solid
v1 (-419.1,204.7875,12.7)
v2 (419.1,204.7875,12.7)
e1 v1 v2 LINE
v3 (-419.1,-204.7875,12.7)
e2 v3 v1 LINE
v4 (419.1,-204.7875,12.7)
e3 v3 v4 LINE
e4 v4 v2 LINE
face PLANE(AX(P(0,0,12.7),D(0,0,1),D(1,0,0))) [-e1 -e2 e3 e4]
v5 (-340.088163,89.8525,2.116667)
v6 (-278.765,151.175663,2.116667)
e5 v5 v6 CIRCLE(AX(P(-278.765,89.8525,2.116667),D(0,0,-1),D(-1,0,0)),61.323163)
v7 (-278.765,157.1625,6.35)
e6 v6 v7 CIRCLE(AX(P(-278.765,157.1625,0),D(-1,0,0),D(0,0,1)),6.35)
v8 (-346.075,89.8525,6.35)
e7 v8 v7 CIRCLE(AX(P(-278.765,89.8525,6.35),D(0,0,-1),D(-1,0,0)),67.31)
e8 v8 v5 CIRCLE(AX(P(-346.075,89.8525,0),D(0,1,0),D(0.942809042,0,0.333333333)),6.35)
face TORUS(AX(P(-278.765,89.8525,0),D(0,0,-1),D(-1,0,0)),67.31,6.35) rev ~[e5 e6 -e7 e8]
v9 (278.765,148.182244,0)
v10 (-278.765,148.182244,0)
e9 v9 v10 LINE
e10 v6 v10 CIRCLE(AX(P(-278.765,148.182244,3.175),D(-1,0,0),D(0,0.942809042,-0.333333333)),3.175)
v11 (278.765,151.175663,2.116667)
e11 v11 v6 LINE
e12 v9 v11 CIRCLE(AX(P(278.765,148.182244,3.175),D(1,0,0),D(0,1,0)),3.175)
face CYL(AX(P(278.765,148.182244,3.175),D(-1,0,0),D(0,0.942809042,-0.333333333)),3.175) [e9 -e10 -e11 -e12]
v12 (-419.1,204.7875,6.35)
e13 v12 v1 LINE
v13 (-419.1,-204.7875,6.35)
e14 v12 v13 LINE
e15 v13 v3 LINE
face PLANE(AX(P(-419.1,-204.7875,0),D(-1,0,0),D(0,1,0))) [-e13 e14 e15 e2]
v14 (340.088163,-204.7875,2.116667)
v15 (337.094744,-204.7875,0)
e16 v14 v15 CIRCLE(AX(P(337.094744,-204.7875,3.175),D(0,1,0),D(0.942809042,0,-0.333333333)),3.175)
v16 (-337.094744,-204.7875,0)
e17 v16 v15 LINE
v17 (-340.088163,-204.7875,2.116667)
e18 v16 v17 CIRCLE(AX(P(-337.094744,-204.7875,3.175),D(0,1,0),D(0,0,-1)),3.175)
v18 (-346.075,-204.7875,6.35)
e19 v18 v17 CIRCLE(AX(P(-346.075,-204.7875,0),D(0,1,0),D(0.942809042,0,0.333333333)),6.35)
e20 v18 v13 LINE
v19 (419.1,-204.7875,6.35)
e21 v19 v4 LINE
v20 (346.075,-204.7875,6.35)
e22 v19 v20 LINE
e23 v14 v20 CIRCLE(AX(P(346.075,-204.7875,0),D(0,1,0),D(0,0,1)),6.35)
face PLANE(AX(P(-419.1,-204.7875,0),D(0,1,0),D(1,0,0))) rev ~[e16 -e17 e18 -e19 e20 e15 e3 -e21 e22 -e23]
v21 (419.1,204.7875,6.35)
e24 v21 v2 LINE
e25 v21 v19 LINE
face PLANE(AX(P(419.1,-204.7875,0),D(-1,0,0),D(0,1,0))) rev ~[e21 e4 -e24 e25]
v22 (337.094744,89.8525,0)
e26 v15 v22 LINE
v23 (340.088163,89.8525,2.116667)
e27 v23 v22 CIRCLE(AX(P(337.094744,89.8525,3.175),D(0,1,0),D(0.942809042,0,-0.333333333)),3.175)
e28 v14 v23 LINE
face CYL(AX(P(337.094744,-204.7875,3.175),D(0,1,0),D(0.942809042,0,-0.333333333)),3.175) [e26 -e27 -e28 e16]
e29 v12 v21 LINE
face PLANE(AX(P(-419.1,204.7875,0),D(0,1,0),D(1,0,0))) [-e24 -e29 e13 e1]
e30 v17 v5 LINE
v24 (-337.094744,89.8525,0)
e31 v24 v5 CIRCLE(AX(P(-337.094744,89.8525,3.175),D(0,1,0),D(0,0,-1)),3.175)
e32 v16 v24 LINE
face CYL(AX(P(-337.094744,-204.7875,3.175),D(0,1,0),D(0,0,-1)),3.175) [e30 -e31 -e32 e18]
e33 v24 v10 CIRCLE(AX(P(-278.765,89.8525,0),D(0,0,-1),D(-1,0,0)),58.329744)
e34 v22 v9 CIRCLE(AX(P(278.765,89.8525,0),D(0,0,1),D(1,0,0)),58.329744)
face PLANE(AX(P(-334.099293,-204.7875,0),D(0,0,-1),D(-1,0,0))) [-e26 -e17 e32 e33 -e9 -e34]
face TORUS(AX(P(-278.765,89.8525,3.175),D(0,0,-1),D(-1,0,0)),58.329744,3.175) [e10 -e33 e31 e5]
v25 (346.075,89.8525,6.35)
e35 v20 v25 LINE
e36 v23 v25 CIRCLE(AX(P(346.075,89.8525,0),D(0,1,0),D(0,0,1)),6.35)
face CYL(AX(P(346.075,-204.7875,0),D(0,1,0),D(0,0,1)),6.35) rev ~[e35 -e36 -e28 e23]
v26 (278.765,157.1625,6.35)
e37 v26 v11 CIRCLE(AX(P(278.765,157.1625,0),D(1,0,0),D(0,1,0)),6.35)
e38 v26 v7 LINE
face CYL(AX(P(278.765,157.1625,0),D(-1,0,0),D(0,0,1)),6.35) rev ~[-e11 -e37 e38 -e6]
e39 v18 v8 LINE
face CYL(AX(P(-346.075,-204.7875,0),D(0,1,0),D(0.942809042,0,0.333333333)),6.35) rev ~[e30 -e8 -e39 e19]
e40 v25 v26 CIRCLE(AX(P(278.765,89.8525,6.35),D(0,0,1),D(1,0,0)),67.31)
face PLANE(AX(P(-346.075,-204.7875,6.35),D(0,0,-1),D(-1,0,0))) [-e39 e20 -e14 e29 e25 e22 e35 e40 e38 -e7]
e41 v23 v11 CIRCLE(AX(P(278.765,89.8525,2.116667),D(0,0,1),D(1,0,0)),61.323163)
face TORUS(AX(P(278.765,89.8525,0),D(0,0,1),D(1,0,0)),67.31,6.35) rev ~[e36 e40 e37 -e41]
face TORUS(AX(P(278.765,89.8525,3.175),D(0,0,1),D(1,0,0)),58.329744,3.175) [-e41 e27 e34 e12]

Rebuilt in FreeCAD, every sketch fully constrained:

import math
import FreeCAD as App
import Part
import Sketcher

V = App.Vector
Q = App.Units.Quantity

doc = App.newDocument("Part")
body = doc.addObject("PartDesign::Body", "Body")

sketch1 = body.newObject("Sketcher::SketchObject", "Sketch")
sketch1.AttachmentSupport = (doc.getObject("XY_Plane"), [""])
sketch1.MapMode = "FlatFace"
sketch1.addGeometry([
    Part.LineSegment(V(-419, 205, 0), V(-419, -205, 0)),
    Part.LineSegment(V(-419, -205, 0), V(419, -205, 0)),
    Part.LineSegment(V(419, -205, 0), V(419, 205, 0)),
    Part.LineSegment(V(419, 205, 0), V(-419, 205, 0)),
], False)
sketch1.addConstraint([
    Sketcher.Constraint("Coincident", 0, 2, 1, 1),
    Sketcher.Constraint("Coincident", 1, 2, 2, 1),
    Sketcher.Constraint("Coincident", 2, 2, 3, 1),
    Sketcher.Constraint("Coincident", 3, 2, 0, 1),
    Sketcher.Constraint("Vertical", 0),
    Sketcher.Constraint("Horizontal", 1),
    Sketcher.Constraint("Vertical", 2),
    Sketcher.Constraint("Horizontal", 3),
    Sketcher.Constraint("Symmetric", 0, 2, 2, 2, -1, 1),
    Sketcher.Constraint("DistanceX", 1, 1, 1, 2, Q("33 in")),
    Sketcher.Constraint("DistanceY", 0, 2, 0, 1, Q("16.125 in")),
])
pad1 = body.newObject("PartDesign::Pad", "Pad")
pad1.Profile = sketch1
pad1.Length = Q("0.5 in")

sketch2 = body.newObject("Sketcher::SketchObject", "Sketch001")
sketch2.AttachmentSupport = (doc.getObject("XZ_Plane"), [""])
sketch2.MapMode = "FlatFace"
sketch2.AttachmentOffset = App.Placement(V(0, 0, 8.0625 * 25.4), App.Rotation())
sketch2.addGeometry([
    Part.LineSegment(V(419.1, 6.3, 0), V(346.1, 6.3, 0)),
    Part.ArcOfCircle(Part.Circle(V(346.1, 0, 0), V(0, 0, 1), 6.3), math.radians(90), math.radians(161)),
    Part.ArcOfCircle(Part.Circle(V(337.1, 3.2, 0), V(0, 0, 1), 3.2), math.radians(-90), math.radians(-19)),
    Part.LineSegment(V(337.1, 0, 0), V(334.1, 0, 0)),
    Part.LineSegment(V(334.1, 0, 0), V(334.1, -8.4, 0)),
    Part.LineSegment(V(334.1, -8.4, 0), V(419.1, -8.4, 0)),
    Part.LineSegment(V(419.1, -8.4, 0), V(419.1, 6.3, 0)),
], False)
sketch2.addConstraint([
    Sketcher.Constraint("Tangent", 0, 2, 1, 1),
    Sketcher.Constraint("Tangent", 1, 2, 2, 2),
    Sketcher.Constraint("Tangent", 2, 1, 3, 1),
    Sketcher.Constraint("Coincident", 3, 2, 4, 1),
    Sketcher.Constraint("Coincident", 4, 2, 5, 1),
    Sketcher.Constraint("Coincident", 5, 2, 6, 1),
    Sketcher.Constraint("Coincident", 6, 2, 0, 1),
    Sketcher.Constraint("Horizontal", 0),
    Sketcher.Constraint("Horizontal", 3),
    Sketcher.Constraint("Vertical", 4),
    Sketcher.Constraint("Horizontal", 5),
    Sketcher.Constraint("Vertical", 6),
    Sketcher.Constraint("PointOnObject", 1, 3, -1),
    Sketcher.Constraint("PointOnObject", 2, 1, -1),
    Sketcher.Constraint("Radius", 1, Q("0.25 in")),
    Sketcher.Constraint("Radius", 2, Q("0.125 in")),
    Sketcher.Constraint("DistanceX", -1, 1, 5, 2, Q("16.5 in")),
    Sketcher.Constraint("DistanceX", 0, 2, 0, 1, Q("2.875 in")),
    Sketcher.Constraint("DistanceX", 3, 2, 3, 1, Q("2.995451 mm")),
    Sketcher.Constraint("DistanceY", 4, 2, 4, 1, Q("8.351594 mm")),
])

sketch3 = body.newObject("Sketcher::SketchObject", "Sketch002")
sketch3.AttachmentSupport = (doc.getObject("XY_Plane"), [""])
sketch3.MapMode = "FlatFace"
sketch3.addGeometry([
    Part.LineSegment(V(340, -205, 0), V(340, 90, 0)),
    Part.ArcOfCircle(Part.Circle(V(279, 90, 0), V(0, 0, 1), 61), math.radians(0), math.radians(90)),
    Part.LineSegment(V(279, 151, 0), V(-279, 151, 0)),
], False)
sketch3.addConstraint([
    Sketcher.Constraint("Tangent", 0, 2, 1, 1),
    Sketcher.Constraint("Tangent", 1, 2, 2, 1),
    Sketcher.Constraint("Vertical", 0),
    Sketcher.Constraint("Horizontal", 2),
    Sketcher.Constraint("Radius", 1, Q("2.4 in")),
    Sketcher.Constraint("DistanceY", 0, 1, 0, 2, Q("11.6 in")),
    Sketcher.Constraint("DistanceX", 2, 2, 2, 1, Q("21.95 in")),
    Sketcher.Constraint("DistanceX", -1, 1, 1, 3, Q("10.975 in")),
    Sketcher.Constraint("DistanceY", 0, 1, -1, 1, Q("8.0625 in")),
])
doc.recompute()

subtractivepipe = body.newObject("PartDesign::SubtractivePipe", "SubtractivePipe")
subtractivepipe.Profile = sketch2
subtractivepipe.Spine = (sketch3, ["Edge1", "Edge2", "Edge3"])

sketch4 = body.newObject("Sketcher::SketchObject", "Sketch003")
sketch4.AttachmentSupport = (doc.getObject("XZ_Plane"), [""])
sketch4.MapMode = "FlatFace"
sketch4.AttachmentOffset = App.Placement(V(0, 0, 8.0625 * 25.4), App.Rotation())
sketch4.addGeometry([
    Part.LineSegment(V(-334.1, -8.4, 0), V(-334.1, 0, 0)),
    Part.LineSegment(V(-334.1, 0, 0), V(-337.1, 0, 0)),
    Part.ArcOfCircle(Part.Circle(V(-337.1, 3.2, 0), V(0, 0, 1), 3.2), math.radians(-161), math.radians(-90)),
    Part.ArcOfCircle(Part.Circle(V(-346.1, 0, 0), V(0, 0, 1), 6.3), math.radians(19), math.radians(90)),
    Part.LineSegment(V(-346.1, 6.3, 0), V(-419.1, 6.3, 0)),
    Part.LineSegment(V(-419.1, 6.3, 0), V(-419.1, -8.4, 0)),
    Part.LineSegment(V(-419.1, -8.4, 0), V(-334.1, -8.4, 0)),
], False)
sketch4.addConstraint([
    Sketcher.Constraint("Coincident", 0, 2, 1, 1),
    Sketcher.Constraint("Tangent", 1, 2, 2, 2),
    Sketcher.Constraint("Tangent", 2, 1, 3, 1),
    Sketcher.Constraint("Tangent", 3, 2, 4, 1),
    Sketcher.Constraint("Coincident", 4, 2, 5, 1),
    Sketcher.Constraint("Coincident", 5, 2, 6, 1),
    Sketcher.Constraint("Coincident", 6, 2, 0, 1),
    Sketcher.Constraint("Vertical", 0),
    Sketcher.Constraint("Horizontal", 1),
    Sketcher.Constraint("Horizontal", 4),
    Sketcher.Constraint("Vertical", 5),
    Sketcher.Constraint("Horizontal", 6),
    Sketcher.Constraint("PointOnObject", 3, 3, -1),
    Sketcher.Constraint("PointOnObject", 0, 2, -1),
    Sketcher.Constraint("Radius", 3, Q("0.25 in")),
    Sketcher.Constraint("Radius", 2, Q("0.125 in")),
    Sketcher.Constraint("DistanceX", 4, 2, -1, 1, Q("16.5 in")),
    Sketcher.Constraint("DistanceX", 4, 2, 4, 1, Q("2.875 in")),
    Sketcher.Constraint("DistanceX", 1, 2, 1, 1, Q("2.995451 mm")),
    Sketcher.Constraint("DistanceY", 0, 1, 0, 2, Q("8.351594 mm")),
])

sketch5 = body.newObject("Sketcher::SketchObject", "Sketch004")
sketch5.AttachmentSupport = (doc.getObject("XY_Plane"), [""])
sketch5.MapMode = "FlatFace"
sketch5.addGeometry([
    Part.LineSegment(V(-340, -205, 0), V(-340, 90, 0)),
    Part.ArcOfCircle(Part.Circle(V(-279, 90, 0), V(0, 0, 1), 61), math.radians(90), math.radians(180)),
], False)
sketch5.addConstraint([
    Sketcher.Constraint("Tangent", 0, 2, 1, 2),
    Sketcher.Constraint("Vertical", 0),
    Sketcher.Constraint("Radius", 1, Q("2.4 in")),
    Sketcher.Constraint("DistanceY", 0, 1, 0, 2, Q("11.6 in")),
    Sketcher.Constraint("DistanceX", 0, 2, 1, 1, Q("2.4 in")),
    Sketcher.Constraint("DistanceX", 1, 3, -1, 1, Q("10.975 in")),
    Sketcher.Constraint("DistanceY", 0, 1, -1, 1, Q("8.0625 in")),
])
doc.recompute()

subtractivepipe2 = body.newObject("PartDesign::SubtractivePipe", "SubtractivePipe001")
subtractivepipe2.Profile = sketch4
subtractivepipe2.Spine = (sketch5, ["Edge1", "Edge2"])

sketch6 = body.newObject("Sketcher::SketchObject", "Sketch005")
sketch6.AttachmentSupport = (doc.getObject("XY_Plane"), [""])
sketch6.MapMode = "FlatFace"
sketch6.addGeometry([
    Part.LineSegment(V(-393, 49, 0), V(-453, 49, 0)),
    Part.LineSegment(V(-453, 49, 0), V(-471, 238, 0)),
    Part.LineSegment(V(-471, 238, 0), V(-329, 230, 0)),
    Part.LineSegment(V(-329, 230, 0), V(-393, 49, 0)),
    Part.LineSegment(V(438, -9, 0), V(311, 234, 0)),
    Part.LineSegment(V(311, 234, 0), V(450, 258, 0)),
    Part.LineSegment(V(450, 258, 0), V(438, -9, 0)),
], False)
sketch6.addConstraint([
    Sketcher.Constraint("Coincident", 0, 2, 1, 1),
    Sketcher.Constraint("Coincident", 1, 2, 2, 1),
    Sketcher.Constraint("Coincident", 2, 2, 3, 1),
    Sketcher.Constraint("Coincident", 3, 2, 0, 1),
    Sketcher.Constraint("Coincident", 4, 2, 5, 1),
    Sketcher.Constraint("Coincident", 5, 2, 6, 1),
    Sketcher.Constraint("Coincident", 6, 2, 4, 1),
    Sketcher.Constraint("Horizontal", 0),
    Sketcher.Constraint("DistanceX", 0, 2, 2, 2, Q("4.8747002 in")),
    Sketcher.Constraint("DistanceX", -1, 1, 4, 2, Q("311.3617 mm")),
    Sketcher.Constraint("Distance", 2, Q("142.523972 mm")),
    Sketcher.Constraint("DistanceX", 0, 2, 0, 1, Q("59.514403 mm")),
    Sketcher.Constraint("DistanceY", -1, 1, 1, 2, Q("238.360658 mm")),
    Sketcher.Constraint("DistanceX", 2, 2, -1, 1, Q("328.931451 mm")),
    Sketcher.Constraint("DistanceX", -1, 1, 5, 2, Q("450.228691 mm")),
    Sketcher.Constraint("DistanceX", 1, 2, 0, 2, Q("18.469989 mm")),
    Sketcher.Constraint("DistanceY", 2, 2, 4, 2, Q("4.10445 mm")),
    Sketcher.Constraint("DistanceY", 3, 2, 5, 2, Q("208.64252 mm")),
    Sketcher.Constraint("DistanceY", 6, 2, 4, 2, Q("243.530311 mm")),
    Sketcher.Constraint("DistanceX", 0, 2, 6, 2, Q("890.66419 mm")),
    Sketcher.Constraint("Distance", 1, Q("190.386497 mm")),
])
pocket1 = body.newObject("PartDesign::Pocket", "Pocket")
pocket1.Profile = sketch6
pocket1.Length = Q("0.25 in")
pocket1.Reversed = True

doc.recompute()
